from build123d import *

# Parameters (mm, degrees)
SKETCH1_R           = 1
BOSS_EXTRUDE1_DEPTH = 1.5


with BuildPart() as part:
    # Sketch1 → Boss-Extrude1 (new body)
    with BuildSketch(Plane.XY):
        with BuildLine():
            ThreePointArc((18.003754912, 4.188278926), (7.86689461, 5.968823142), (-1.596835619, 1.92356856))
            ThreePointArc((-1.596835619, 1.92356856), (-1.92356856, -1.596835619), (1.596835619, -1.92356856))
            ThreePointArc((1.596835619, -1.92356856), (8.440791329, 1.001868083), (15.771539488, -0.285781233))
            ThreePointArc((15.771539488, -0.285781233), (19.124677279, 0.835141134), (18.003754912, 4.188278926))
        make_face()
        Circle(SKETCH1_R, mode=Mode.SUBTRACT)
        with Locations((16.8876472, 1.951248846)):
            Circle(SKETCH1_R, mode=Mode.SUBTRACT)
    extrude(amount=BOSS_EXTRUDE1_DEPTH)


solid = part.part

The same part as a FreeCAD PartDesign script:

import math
import FreeCAD as App
import Part
import Sketcher

V = App.Vector
Q = App.Units.Quantity

doc = App.newDocument("Part")
body = doc.addObject("PartDesign::Body", "Body")

sketch1 = body.newObject("Sketcher::SketchObject", "Sketch")
sketch1.AttachmentSupport = (doc.getObject("XY_Plane"), [""])
sketch1.MapMode = "FlatFace"
sketch1.addGeometry([
    Part.ArcOfCircle(Part.Circle(V(9.9, -12, 0), V(0, 0, 1), 18.1), math.radians(63), math.radians(130)),
    Part.ArcOfCircle(Part.Circle(V(0, 0, 0), V(0, 0, 1), 2.5), math.radians(130), math.radians(310)),
    Part.ArcOfCircle(Part.Circle(V(9.9, -12, 0), V(0, 0, 1), 13.1), math.radians(63), math.radians(130)),
    Part.ArcOfCircle(Part.Circle(V(16.9, 2, 0), V(0, 0, 1), 2.5), math.radians(-117), math.radians(63)),
    Part.Circle(V(0, 0, 0), V(0, 0, 1), 1),
    Part.Circle(V(16.9, 2, 0), V(0, 0, 1), 1),
], False)
sketch1.addConstraint([
    Sketcher.Constraint("Tangent", 0, 2, 1, 1),
    Sketcher.Constraint("Tangent", 1, 2, 2, 2),
    Sketcher.Constraint("Tangent", 2, 1, 3, 1),
    Sketcher.Constraint("Tangent", 3, 2, 0, 1),
    Sketcher.Constraint("Coincident", 1, 3, -1, 1),
    Sketcher.Constraint("Coincident", 4, 3, -1, 1),
    Sketcher.Constraint("Coincident", 2, 3, 0, 3),
    Sketcher.Constraint("Coincident", 5, 3, 3, 3),
    Sketcher.Constraint("Equal", 4, 5),
    Sketcher.Constraint("Diameter", 4, Q("2 mm")),
    Sketcher.Constraint("Radius", 1, Q("2.5 mm")),
    Sketcher.Constraint("Radius", 0, Q("18.062108 mm")),
    Sketcher.Constraint("DistanceX", -1, 1, 0, 3, Q("9.940052 mm")),
    Sketcher.Constraint("DistanceY", -1, 1, 3, 3, Q("1.951249 mm")),
])
pad1 = body.newObject("PartDesign::Pad", "Pad")
pad1.Profile = sketch1
pad1.Length = 1.5

doc.recompute()
